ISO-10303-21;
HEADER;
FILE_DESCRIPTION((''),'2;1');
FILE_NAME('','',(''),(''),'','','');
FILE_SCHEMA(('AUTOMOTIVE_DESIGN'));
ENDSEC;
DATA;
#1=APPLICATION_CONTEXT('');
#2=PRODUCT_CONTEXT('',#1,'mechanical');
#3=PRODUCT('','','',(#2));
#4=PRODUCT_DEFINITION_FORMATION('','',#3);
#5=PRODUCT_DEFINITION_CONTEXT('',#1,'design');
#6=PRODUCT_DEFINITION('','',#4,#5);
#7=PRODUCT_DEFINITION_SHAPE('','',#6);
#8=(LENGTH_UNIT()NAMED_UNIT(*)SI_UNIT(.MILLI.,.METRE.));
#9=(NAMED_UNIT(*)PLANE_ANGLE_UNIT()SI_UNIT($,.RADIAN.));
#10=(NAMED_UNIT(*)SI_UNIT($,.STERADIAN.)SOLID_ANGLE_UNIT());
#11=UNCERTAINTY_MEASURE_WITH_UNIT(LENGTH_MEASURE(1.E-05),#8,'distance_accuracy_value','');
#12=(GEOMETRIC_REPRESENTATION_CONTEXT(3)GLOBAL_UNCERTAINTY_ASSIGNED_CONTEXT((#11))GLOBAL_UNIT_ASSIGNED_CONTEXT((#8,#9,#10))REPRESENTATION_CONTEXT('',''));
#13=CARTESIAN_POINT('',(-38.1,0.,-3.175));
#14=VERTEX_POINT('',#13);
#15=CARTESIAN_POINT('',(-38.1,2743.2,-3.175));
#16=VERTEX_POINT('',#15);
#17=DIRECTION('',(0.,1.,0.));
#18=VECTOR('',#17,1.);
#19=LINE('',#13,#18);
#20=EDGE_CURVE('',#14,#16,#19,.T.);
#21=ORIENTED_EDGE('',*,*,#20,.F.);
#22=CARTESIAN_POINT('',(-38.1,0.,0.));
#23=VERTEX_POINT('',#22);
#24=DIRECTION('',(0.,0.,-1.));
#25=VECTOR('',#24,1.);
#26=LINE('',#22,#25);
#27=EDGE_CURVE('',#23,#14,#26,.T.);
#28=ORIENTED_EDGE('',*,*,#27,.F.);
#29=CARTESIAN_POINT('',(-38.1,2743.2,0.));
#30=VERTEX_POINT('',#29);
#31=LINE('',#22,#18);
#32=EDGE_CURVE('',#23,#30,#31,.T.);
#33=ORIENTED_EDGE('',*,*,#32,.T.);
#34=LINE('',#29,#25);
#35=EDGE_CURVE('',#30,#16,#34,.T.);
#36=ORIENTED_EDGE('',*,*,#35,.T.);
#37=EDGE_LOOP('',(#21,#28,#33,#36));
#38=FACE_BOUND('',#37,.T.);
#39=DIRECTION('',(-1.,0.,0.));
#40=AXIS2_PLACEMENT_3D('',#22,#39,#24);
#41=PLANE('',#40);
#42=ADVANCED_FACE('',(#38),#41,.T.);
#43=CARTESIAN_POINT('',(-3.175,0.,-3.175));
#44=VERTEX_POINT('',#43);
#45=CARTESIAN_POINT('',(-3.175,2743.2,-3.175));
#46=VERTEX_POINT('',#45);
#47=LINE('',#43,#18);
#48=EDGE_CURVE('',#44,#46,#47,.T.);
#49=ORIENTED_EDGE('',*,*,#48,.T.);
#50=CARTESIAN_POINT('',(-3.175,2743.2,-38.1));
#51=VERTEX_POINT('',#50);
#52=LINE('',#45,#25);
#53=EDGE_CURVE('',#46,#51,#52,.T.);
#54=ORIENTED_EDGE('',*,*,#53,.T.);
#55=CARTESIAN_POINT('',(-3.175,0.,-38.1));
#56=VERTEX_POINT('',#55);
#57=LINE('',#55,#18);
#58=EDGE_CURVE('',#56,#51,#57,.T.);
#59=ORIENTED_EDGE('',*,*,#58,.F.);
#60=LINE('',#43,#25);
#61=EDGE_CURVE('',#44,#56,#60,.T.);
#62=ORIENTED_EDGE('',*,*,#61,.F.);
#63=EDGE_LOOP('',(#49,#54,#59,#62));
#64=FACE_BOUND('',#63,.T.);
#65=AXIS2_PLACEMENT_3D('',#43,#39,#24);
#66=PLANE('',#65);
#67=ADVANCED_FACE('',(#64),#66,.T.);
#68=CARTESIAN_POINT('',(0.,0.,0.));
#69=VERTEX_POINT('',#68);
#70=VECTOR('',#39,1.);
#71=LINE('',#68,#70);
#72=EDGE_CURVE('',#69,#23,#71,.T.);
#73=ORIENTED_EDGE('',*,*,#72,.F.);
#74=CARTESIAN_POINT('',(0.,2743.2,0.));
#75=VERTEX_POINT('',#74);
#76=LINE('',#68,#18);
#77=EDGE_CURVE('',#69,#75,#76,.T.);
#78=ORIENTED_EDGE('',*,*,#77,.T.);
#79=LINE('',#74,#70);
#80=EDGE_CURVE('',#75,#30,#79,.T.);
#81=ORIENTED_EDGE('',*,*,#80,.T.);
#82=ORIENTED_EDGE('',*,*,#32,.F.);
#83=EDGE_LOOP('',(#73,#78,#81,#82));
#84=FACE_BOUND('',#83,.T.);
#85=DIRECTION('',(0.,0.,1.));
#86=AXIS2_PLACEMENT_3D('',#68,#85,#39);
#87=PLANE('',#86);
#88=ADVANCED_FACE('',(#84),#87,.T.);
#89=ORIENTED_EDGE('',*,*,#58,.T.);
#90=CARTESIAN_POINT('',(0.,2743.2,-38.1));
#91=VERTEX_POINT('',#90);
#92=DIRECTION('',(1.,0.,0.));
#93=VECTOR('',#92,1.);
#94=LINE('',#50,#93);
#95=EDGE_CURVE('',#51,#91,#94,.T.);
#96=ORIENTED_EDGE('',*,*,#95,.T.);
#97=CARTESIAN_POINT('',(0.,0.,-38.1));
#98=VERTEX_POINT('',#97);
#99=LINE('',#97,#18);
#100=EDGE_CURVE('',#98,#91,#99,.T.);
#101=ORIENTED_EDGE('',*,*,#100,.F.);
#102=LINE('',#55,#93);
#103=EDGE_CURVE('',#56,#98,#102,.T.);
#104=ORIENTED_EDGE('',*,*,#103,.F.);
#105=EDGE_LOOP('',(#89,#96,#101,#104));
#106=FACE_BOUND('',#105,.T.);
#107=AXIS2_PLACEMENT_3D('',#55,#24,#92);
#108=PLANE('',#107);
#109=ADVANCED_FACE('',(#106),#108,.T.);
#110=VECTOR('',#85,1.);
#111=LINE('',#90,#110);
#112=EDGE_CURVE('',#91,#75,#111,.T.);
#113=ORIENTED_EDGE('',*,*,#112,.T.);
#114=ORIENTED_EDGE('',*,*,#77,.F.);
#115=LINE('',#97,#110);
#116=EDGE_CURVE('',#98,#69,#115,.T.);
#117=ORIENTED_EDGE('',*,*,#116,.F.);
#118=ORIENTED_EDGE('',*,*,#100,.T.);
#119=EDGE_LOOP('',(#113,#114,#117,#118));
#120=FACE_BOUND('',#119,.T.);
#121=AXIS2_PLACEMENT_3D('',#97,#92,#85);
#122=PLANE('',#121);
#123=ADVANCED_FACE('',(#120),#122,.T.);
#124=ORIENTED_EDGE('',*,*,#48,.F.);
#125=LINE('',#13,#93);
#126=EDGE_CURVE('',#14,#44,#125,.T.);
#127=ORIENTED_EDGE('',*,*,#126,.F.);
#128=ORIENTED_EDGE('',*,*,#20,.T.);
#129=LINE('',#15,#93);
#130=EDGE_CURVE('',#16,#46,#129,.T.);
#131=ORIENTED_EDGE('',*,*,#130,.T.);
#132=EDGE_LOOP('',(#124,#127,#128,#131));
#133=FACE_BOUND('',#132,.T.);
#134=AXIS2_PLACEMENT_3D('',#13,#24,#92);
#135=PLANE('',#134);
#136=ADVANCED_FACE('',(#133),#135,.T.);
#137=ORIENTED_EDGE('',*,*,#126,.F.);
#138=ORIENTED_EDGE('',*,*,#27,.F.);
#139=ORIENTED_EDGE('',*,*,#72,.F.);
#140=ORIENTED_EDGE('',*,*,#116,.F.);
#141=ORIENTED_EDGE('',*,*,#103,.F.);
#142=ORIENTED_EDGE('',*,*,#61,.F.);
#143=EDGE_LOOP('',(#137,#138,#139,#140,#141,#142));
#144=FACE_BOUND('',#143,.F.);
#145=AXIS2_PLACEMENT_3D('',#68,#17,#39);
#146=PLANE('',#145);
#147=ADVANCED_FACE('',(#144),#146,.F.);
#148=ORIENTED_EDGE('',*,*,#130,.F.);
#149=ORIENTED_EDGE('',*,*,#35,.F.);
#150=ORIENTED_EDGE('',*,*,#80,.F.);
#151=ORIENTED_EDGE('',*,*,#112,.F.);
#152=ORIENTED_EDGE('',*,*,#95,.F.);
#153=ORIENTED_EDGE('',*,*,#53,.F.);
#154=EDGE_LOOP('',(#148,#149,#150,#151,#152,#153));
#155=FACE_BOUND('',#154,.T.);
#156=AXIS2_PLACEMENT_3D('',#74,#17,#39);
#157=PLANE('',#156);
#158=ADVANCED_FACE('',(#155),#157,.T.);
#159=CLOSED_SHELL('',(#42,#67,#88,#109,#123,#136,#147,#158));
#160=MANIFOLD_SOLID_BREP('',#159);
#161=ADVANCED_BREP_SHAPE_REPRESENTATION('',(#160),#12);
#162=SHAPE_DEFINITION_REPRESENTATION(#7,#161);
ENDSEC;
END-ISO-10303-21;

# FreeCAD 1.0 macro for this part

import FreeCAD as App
import Part
import Sketcher

V = App.Vector
Q = App.Units.Quantity


def add_polygon(sketch, points):
    """Adds a closed chain of lines whose ends are joined by coincident constraints."""
    first, n = sketch.GeometryCount, len(points)
    for a, b in zip(points, points[1:] + points[:1]):
        sketch.addGeometry(Part.LineSegment(App.Vector(*a, 0), App.Vector(*b, 0)), False)
    for i in range(n):
        sketch.addConstraint(Sketcher.Constraint("Coincident", first + i, 2, first + (i + 1) % n, 1))

doc = App.newDocument("Part")
body = doc.addObject("PartDesign::Body", "Body")

# Sketch on XZ plane
sketch1 = body.newObject("Sketcher::SketchObject", "Sketch")
sketch1.AttachmentSupport = (doc.getObject("XZ_Plane"), [""])
sketch1.MapMode = "FlatFace"
add_polygon(sketch1, [(-38.1, 0), (0, 0), (0, -38.1), (-3.2, -38.1), (-3.2, -3.2), (-38.1, -3.2)])  # lines 0-5
sketch1.addConstraint(Sketcher.Constraint("Horizontal", 0))
sketch1.addConstraint(Sketcher.Constraint("Vertical", 1))
sketch1.addConstraint(Sketcher.Constraint("Horizontal", 2))
sketch1.addConstraint(Sketcher.Constraint("Vertical", 3))
sketch1.addConstraint(Sketcher.Constraint("Horizontal", 4))
sketch1.addConstraint(Sketcher.Constraint("Vertical", 5))
sketch1.addConstraint(Sketcher.Constraint("Coincident", 0, 2, -1, 1))
sketch1.addConstraint(Sketcher.Constraint("Equal", 0, 1))
sketch1.addConstraint(Sketcher.Constraint("Equal", 4, 3))
sketch1.addConstraint(Sketcher.Constraint("DistanceX", 0, 1, 0, 2, Q("1.5 in")))
sketch1.addConstraint(Sketcher.Constraint("DistanceX", 2, 2, 2, 1, Q("0.125 in")))
pad1 = body.newObject("PartDesign::Pad", "Pad")
pad1.Profile = sketch1
pad1.Length = Q("108 in")
pad1.Reversed = True

doc.recompute()
